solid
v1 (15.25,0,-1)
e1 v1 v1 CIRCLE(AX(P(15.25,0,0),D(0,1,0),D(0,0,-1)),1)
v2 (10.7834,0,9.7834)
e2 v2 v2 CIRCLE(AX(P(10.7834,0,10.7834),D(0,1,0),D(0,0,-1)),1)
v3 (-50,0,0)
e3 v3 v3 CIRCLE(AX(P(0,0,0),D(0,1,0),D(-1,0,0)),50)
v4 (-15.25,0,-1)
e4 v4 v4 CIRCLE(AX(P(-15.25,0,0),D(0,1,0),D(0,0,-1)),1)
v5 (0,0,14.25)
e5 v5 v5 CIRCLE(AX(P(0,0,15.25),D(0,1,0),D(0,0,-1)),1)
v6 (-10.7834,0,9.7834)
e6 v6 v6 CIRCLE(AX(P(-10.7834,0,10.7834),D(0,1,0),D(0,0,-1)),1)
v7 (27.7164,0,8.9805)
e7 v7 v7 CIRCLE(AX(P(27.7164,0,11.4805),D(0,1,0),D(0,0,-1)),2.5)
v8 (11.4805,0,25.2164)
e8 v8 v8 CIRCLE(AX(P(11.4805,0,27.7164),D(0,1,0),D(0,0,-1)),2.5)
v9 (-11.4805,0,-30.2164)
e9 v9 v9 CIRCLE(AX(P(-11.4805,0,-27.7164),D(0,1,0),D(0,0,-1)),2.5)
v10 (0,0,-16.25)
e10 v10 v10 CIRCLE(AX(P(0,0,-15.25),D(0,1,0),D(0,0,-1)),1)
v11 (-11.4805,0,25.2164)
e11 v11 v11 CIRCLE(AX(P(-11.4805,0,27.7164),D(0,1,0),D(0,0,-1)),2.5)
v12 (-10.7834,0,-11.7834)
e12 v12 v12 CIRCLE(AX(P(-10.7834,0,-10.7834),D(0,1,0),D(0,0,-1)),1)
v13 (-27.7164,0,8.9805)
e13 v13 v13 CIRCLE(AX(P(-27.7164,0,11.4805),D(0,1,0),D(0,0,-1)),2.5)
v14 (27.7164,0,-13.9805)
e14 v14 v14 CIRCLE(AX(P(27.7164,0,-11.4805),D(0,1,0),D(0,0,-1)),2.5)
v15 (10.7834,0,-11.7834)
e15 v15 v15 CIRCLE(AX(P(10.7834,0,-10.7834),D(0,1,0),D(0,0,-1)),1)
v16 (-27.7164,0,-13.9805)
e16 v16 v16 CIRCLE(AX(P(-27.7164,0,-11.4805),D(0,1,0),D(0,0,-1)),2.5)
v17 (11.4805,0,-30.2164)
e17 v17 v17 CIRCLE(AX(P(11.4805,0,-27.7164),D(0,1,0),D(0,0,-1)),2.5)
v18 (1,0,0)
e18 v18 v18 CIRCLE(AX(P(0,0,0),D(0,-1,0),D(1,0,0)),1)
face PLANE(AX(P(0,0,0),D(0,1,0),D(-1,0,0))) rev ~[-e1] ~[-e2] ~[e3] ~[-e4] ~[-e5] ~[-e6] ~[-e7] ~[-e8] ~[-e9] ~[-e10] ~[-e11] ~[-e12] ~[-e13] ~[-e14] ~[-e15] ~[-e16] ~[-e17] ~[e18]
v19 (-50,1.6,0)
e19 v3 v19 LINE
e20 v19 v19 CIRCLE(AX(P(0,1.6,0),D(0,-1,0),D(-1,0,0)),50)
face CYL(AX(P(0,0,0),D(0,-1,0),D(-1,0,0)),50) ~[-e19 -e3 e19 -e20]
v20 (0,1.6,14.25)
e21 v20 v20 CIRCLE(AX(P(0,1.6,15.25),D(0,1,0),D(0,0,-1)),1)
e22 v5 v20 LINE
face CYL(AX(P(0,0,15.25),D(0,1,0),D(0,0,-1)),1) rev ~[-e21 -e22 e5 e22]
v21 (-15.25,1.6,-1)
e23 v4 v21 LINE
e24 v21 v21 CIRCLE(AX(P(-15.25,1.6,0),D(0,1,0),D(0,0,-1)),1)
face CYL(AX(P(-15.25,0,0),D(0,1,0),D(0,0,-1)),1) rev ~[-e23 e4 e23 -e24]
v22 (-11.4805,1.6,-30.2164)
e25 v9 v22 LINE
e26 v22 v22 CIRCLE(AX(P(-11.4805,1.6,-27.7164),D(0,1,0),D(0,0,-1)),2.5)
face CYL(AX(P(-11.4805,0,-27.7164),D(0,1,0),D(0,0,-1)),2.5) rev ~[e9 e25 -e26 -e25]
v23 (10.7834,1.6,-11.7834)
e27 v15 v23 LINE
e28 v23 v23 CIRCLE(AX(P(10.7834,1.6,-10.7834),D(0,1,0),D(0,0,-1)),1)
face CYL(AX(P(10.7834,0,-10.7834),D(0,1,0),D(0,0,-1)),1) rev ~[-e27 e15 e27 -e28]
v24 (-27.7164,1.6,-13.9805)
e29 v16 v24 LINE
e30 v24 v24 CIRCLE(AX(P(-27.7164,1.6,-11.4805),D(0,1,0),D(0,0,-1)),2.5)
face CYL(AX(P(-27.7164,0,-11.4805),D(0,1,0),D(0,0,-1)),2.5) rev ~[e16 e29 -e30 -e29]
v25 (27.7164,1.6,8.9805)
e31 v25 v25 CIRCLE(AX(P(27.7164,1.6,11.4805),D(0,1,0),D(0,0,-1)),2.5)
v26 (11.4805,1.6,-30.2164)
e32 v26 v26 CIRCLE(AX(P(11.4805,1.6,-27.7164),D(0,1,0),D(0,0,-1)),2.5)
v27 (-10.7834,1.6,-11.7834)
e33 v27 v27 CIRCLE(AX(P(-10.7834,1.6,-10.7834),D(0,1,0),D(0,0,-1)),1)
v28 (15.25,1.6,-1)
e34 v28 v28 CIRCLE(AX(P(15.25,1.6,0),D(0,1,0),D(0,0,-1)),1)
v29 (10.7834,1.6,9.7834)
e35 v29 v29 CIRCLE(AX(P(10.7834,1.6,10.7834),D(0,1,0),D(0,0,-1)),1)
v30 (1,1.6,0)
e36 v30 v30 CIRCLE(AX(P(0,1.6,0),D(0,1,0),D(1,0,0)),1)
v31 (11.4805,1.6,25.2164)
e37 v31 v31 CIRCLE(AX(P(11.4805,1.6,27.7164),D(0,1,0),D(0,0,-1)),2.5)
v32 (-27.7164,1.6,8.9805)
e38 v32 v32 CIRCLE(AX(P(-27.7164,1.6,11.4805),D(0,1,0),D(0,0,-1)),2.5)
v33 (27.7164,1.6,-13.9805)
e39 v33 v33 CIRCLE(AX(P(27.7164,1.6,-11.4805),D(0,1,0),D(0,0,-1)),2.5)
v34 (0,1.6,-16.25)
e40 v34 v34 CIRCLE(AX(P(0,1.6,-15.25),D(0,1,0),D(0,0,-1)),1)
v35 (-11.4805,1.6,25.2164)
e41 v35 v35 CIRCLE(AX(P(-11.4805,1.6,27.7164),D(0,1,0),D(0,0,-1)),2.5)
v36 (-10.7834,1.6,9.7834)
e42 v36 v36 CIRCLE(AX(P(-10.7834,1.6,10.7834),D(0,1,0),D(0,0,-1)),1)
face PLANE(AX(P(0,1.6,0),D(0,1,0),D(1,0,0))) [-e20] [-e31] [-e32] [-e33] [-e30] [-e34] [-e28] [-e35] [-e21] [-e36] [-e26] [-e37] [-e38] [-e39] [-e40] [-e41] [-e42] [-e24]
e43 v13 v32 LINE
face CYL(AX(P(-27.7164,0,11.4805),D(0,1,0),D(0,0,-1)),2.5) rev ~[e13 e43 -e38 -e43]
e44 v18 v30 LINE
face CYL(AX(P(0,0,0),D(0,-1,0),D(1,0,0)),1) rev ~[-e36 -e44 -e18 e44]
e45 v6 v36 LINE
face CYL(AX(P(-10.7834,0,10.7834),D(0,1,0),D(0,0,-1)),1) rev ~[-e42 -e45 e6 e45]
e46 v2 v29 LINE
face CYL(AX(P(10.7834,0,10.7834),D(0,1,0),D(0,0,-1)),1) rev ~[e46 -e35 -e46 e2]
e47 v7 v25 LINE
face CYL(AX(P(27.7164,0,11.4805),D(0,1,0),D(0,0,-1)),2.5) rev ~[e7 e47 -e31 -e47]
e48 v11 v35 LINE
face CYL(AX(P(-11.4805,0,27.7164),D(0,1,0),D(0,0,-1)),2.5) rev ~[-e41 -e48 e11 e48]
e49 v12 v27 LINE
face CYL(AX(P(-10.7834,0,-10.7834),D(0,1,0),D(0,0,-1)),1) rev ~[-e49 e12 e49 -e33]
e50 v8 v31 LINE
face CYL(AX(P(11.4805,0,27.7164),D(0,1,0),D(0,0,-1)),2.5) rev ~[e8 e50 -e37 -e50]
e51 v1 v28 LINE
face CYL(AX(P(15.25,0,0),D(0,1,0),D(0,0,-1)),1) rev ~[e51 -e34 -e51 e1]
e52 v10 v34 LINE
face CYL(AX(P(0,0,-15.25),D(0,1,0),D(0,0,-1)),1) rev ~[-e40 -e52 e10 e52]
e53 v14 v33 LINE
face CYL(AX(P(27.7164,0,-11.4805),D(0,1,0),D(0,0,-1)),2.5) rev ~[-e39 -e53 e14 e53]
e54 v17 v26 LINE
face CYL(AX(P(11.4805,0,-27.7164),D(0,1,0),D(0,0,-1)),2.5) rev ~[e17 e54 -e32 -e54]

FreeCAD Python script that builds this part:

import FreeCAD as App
import Part
import Sketcher

V = App.Vector
Q = App.Units.Quantity


def edges_at(feature, points):
    """Names of the edges that pass closest to the given points."""
    edges = feature.Shape.Edges
    near = lambda p: min(range(len(edges)), key=lambda i: edges[i].distToShape(Part.Vertex(*p))[0])
    return sorted({f"Edge{near(p) + 1}" for p in points})

doc = App.newDocument("Part")
body = doc.addObject("PartDesign::Body", "Body")

sketch1 = body.newObject("Sketcher::SketchObject", "Sketch")
sketch1.AttachmentSupport = (doc.getObject("XZ_Plane"), [""])
sketch1.MapMode = "FlatFace"
sketch1.addGeometry(Part.Circle(V(0, 0, 0), V(0, 0, 1), 50), False)
sketch1.addConstraint(Sketcher.Constraint("Coincident", 0, 3, -1, 1))
sketch1.addConstraint(Sketcher.Constraint("Diameter", 0, Q("100 mm")))
pad1 = body.newObject("PartDesign::Pad", "Pad")
pad1.Profile = sketch1
pad1.Length = 20
pad1.Reversed = True

sketch2 = body.newObject("Sketcher::SketchObject", "Sketch001")
sketch2.AttachmentSupport = (doc.getObject("YZ_Plane"), [""])
sketch2.MapMode = "FlatFace"
sketch2.AttachmentOffset = App.Placement(V(0, 0, 50), App.Rotation())
sketch2.addGeometry(Part.Circle(V(10, 0, 0), V(0, 0, 1), 5), False)
sketch2.addConstraint(Sketcher.Constraint("PointOnObject", 0, 3, -1))
sketch2.addConstraint(Sketcher.Constraint("Diameter", 0, Q("10 mm")))
sketch2.addConstraint(Sketcher.Constraint("DistanceX", -1, 1, 0, 3, Q("10 mm")))
doc.recompute()
hole = body.newObject("PartDesign::Hole", "Hole")
hole.Profile = sketch2
hole.ThreadType = "None"
hole.Diameter = 10
hole.DepthType = "ThroughAll"
doc.recompute()

polarpattern = body.newObject("PartDesign::PolarPattern", "PolarPattern")
polarpattern.Originals = [hole]
polarpattern.Axis = (doc.getObject("Y_Axis"), [""])
polarpattern.Angle = 360
polarpattern.Occurrences = 8
body.Tip = polarpattern

sketch3 = body.newObject("Sketcher::SketchObject", "Sketch002")
sketch3.AttachmentSupport = (doc.getObject("XZ_Plane"), [""])
sketch3.MapMode = "FlatFace"
sketch3.addGeometry(Part.Circle(V(0, 0, 0), V(0, 0, 1), 1), False)
sketch3.addConstraint(Sketcher.Constraint("Coincident", 0, 3, -1, 1))
sketch3.addConstraint(Sketcher.Constraint("Diameter", 0, Q("2 mm")))
pocket1 = body.newObject("PartDesign::Pocket", "Pocket")
pocket1.Profile = sketch3
pocket1.Type = "ThroughAll"

sketch4 = body.newObject("Sketcher::SketchObject", "Sketch003")
sketch4.AttachmentSupport = (doc.getObject("XZ_Plane"), [""])
sketch4.MapMode = "FlatFace"
sketch4.addGeometry(Part.Circle(V(-11.5, 27.7, 0), V(0, 0, 1), 2.5), False)
sketch4.addGeometry(Part.Circle(V(-27.7, 11.5, 0), V(0, 0, 1), 2.5), False)
sketch4.addGeometry(Part.Circle(V(-27.7, -11.5, 0), V(0, 0, 1), 2.5), False)
sketch4.addGeometry(Part.Circle(V(-11.5, -27.7, 0), V(0, 0, 1), 2.5), False)
sketch4.addGeometry(Part.Circle(V(11.5, -27.7, 0), V(0, 0, 1), 2.5), False)
sketch4.addGeometry(Part.Circle(V(27.7, -11.5, 0), V(0, 0, 1), 2.5), False)
sketch4.addGeometry(Part.Circle(V(27.7, 11.5, 0), V(0, 0, 1), 2.5), False)
sketch4.addGeometry(Part.Circle(V(11.5, 27.7, 0), V(0, 0, 1), 2.5), False)
sketch4.addConstraint(Sketcher.Constraint("Equal", 0, 1))
sketch4.addConstraint(Sketcher.Constraint("Equal", 1, 2))
sketch4.addConstraint(Sketcher.Constraint("Equal", 2, 3))
sketch4.addConstraint(Sketcher.Constraint("Equal", 3, 4))
sketch4.addConstraint(Sketcher.Constraint("Equal", 4, 5))
sketch4.addConstraint(Sketcher.Constraint("Equal", 5, 6))
sketch4.addConstraint(Sketcher.Constraint("Equal", 6, 7))
sketch4.addConstraint(Sketcher.Constraint("Symmetric", 0, 3, 4, 3, -1, 1))
sketch4.addConstraint(Sketcher.Constraint("Symmetric", 1, 3, 5, 3, -1, 1))
sketch4.addConstraint(Sketcher.Constraint("Symmetric", 2, 3, 6, 3, -1, 1))
sketch4.addConstraint(Sketcher.Constraint("Symmetric", 3, 3, 7, 3, -1, 1))
sketch4.addConstraint(Sketcher.Constraint("Symmetric", 3, 3, 4, 3, -2))
sketch4.addConstraint(Sketcher.Constraint("Symmetric", 2, 3, 5, 3, -2))
sketch4.addConstraint(Sketcher.Constraint("Diameter", 0, Q("5 mm")))
sketch4.addConstraint(Sketcher.Constraint("DistanceX", 1, 3, 0, 3, Q("16.236 mm")))
sketch4.addConstraint(Sketcher.Constraint("DistanceY", 1, 3, 0, 3, Q("16.236 mm")))
sketch4.addConstraint(Sketcher.Constraint("DistanceY", 2, 3, 1, 3, Q("22.961 mm")))
sketch4.addConstraint(Sketcher.Constraint("DistanceX", 3, 3, 4, 3, Q("22.961 mm")))
doc.recompute()
hole2 = body.newObject("PartDesign::Hole", "Hole001")
hole2.Profile = sketch4
hole2.ThreadType = "None"
hole2.Diameter = 5
hole2.DepthType = "ThroughAll"
doc.recompute()

chamfer = body.newObject("PartDesign::Chamfer", "Chamfer")
chamfer.Base = (hole2, edges_at(hole2, [
    (-49.854, 6.767, -3.814),
    (-49.855, 13.235, -3.812),
    (-49.854, 13.233, 3.814),
    (-49.854, 6.765, 3.813),
    (49.855, 13.235, -3.812),
    (49.854, 13.233, 3.814),
    (49.854, 6.767, -3.814),
    (49.854, 6.765, 3.813),
    (-37.957, 6.78, 32.547),
    (-37.955, 13.222, 32.548),
    (-32.547, 6.78, 37.957),
    (-32.547, 13.22, 37.957),
    (32.548, 13.222, -37.955),
    (37.957, 13.22, -32.547),
    (32.547, 6.78, -37.957),
    (37.957, 6.78, -32.547),
    (32.547, 6.78, 37.957),
    (32.548, 13.222, 37.955),
    (37.957, 6.78, 32.547),
    (37.957, 13.22, 32.547),
    (-37.955, 13.222, -32.548),
    (-32.547, 13.22, -37.957),
    (-37.957, 6.78, -32.547),
    (-32.547, 6.78, -37.957),
    (-3.825, 6.78, 49.853),
    (-3.824, 13.222, 49.854),
    (3.825, 6.78, 49.853),
    (3.825, 13.22, 49.853),
    (-3.824, 13.222, -49.854),
    (3.825, 13.22, -49.853),
    (-3.825, 6.78, -49.853),
    (3.825, 6.78, -49.853),
]))
chamfer.Size = 1

sketch5 = body.newObject("Sketcher::SketchObject", "Sketch004")
sketch5.AttachmentSupport = (doc.getObject("XZ_Plane"), [""])
sketch5.MapMode = "FlatFace"
sketch5.AttachmentOffset = App.Placement(V(0, 0, -20), App.Rotation())
sketch5.addGeometry(Part.Circle(V(0, 0, 0), V(0, 0, 1), 60), False)
sketch5.addConstraint(Sketcher.Constraint("Coincident", 0, 3, -1, 1))
sketch5.addConstraint(Sketcher.Constraint("Diameter", 0, Q("120 mm")))
pocket2 = body.newObject("PartDesign::Pocket", "Pocket001")
pocket2.Profile = sketch5
pocket2.Length = 10.25
pocket2.Reversed = True

sketch6 = body.newObject("Sketcher::SketchObject", "Sketch005")
sketch6.AttachmentSupport = (doc.getObject("XZ_Plane"), [""])
sketch6.MapMode = "FlatFace"
sketch6.AttachmentOffset = App.Placement(V(0, 0, -9.75), App.Rotation())
sketch6.addGeometry(Part.Circle(V(0, 0, 0), V(0, 0, 1), 18), False)
sketch6.addConstraint(Sketcher.Constraint("Coincident", 0, 3, -1, 1))
sketch6.addConstraint(Sketcher.Constraint("Diameter", 0, Q("35 mm")))
pocket3 = body.newObject("PartDesign::Pocket", "Pocket002")
pocket3.Profile = sketch6
pocket3.Length = 5
pocket3.Reversed = True

sketch7 = body.newObject("Sketcher::SketchObject", "Sketch006")
sketch7.AttachmentSupport = (doc.getObject("XZ_Plane"), [""])
sketch7.MapMode = "FlatFace"
sketch7.addGeometry(Part.Circle(V(15.2, 0, 0), V(0, 0, 1), 1), False)
sketch7.addGeometry(Part.Circle(V(10.8, 10.8, 0), V(0, 0, 1), 1), False)
sketch7.addGeometry(Part.Circle(V(0, 15.2, 0), V(0, 0, 1), 1), False)
sketch7.addGeometry(Part.Circle(V(-10.8, 10.8, 0), V(0, 0, 1), 1), False)
sketch7.addGeometry(Part.Circle(V(-15.2, 0, 0), V(0, 0, 1), 1), False)
sketch7.addGeometry(Part.Circle(V(-10.8, -10.8, 0), V(0, 0, 1), 1), False)
sketch7.addGeometry(Part.Circle(V(0, -15.2, 0), V(0, 0, 1), 1), False)
sketch7.addGeometry(Part.Circle(V(10.8, -10.8, 0), V(0, 0, 1), 1), False)
sketch7.addConstraint(Sketcher.Constraint("Equal", 0, 1))
sketch7.addConstraint(Sketcher.Constraint("Equal", 1, 2))
sketch7.addConstraint(Sketcher.Constraint("Equal", 2, 3))
sketch7.addConstraint(Sketcher.Constraint("Equal", 3, 4))
sketch7.addConstraint(Sketcher.Constraint("Equal", 4, 5))
sketch7.addConstraint(Sketcher.Constraint("Equal", 5, 6))
sketch7.addConstraint(Sketcher.Constraint("Equal", 6, 7))
sketch7.addConstraint(Sketcher.Constraint("Symmetric", 0, 3, 4, 3, -1, 1))
sketch7.addConstraint(Sketcher.Constraint("Symmetric", 1, 3, 5, 3, -1, 1))
sketch7.addConstraint(Sketcher.Constraint("Symmetric", 2, 3, 6, 3, -1, 1))
sketch7.addConstraint(Sketcher.Constraint("Symmetric", 3, 3, 7, 3, -1, 1))
sketch7.addConstraint(Sketcher.Constraint("Symmetric", 1, 3, 3, 3, -2))
sketch7.addConstraint(Sketcher.Constraint("PointOnObject", 0, 3, -1))
sketch7.addConstraint(Sketcher.Constraint("PointOnObject", 2, 3, -2))
sketch7.addConstraint(Sketcher.Constraint("Diameter", 0, Q("2 mm")))
sketch7.addConstraint(Sketcher.Constraint("DistanceX", 4, 3, 0, 3, Q("30.5 mm")))
sketch7.addConstraint(Sketcher.Constraint("DistanceY", -1, 1, 2, 3, Q("15.25 mm")))
sketch7.addConstraint(Sketcher.Constraint("DistanceX", -1, 1, 1, 3, Q("10.7834 mm")))
sketch7.addConstraint(Sketcher.Constraint("DistanceY", -1, 1, 1, 3, Q("10.7834 mm")))
doc.recompute()
hole3 = body.newObject("PartDesign::Hole", "Hole002")
hole3.Profile = sketch7
hole3.ThreadType = "None"
hole3.Diameter = 2
hole3.DepthType = "ThroughAll"

sketch8 = body.newObject("Sketcher::SketchObject", "Sketch007")
sketch8.AttachmentSupport = (doc.getObject("XZ_Plane"), [""])
sketch8.MapMode = "FlatFace"
sketch8.AttachmentOffset = App.Placement(V(0, 0, -9.75), App.Rotation())
sketch8.addGeometry(Part.Circle(V(0, 0, 0), V(0, 0, 1), 60), False)
sketch8.addGeometry(Part.Circle(V(0, 0, 0), V(0, 0, 1), 1), False)
sketch8.addConstraint(Sketcher.Constraint("Coincident", 0, 3, -1, 1))
sketch8.addConstraint(Sketcher.Constraint("Coincident", 1, 3, -1, 1))
sketch8.addConstraint(Sketcher.Constraint("Diameter", 0, Q("120 mm")))
sketch8.addConstraint(Sketcher.Constraint("Diameter", 1, Q("2 mm")))
pocket4 = body.newObject("PartDesign::Pocket", "Pocket003")
pocket4.Profile = sketch8
pocket4.Length = 8.15
pocket4.Reversed = True

doc.recompute()
